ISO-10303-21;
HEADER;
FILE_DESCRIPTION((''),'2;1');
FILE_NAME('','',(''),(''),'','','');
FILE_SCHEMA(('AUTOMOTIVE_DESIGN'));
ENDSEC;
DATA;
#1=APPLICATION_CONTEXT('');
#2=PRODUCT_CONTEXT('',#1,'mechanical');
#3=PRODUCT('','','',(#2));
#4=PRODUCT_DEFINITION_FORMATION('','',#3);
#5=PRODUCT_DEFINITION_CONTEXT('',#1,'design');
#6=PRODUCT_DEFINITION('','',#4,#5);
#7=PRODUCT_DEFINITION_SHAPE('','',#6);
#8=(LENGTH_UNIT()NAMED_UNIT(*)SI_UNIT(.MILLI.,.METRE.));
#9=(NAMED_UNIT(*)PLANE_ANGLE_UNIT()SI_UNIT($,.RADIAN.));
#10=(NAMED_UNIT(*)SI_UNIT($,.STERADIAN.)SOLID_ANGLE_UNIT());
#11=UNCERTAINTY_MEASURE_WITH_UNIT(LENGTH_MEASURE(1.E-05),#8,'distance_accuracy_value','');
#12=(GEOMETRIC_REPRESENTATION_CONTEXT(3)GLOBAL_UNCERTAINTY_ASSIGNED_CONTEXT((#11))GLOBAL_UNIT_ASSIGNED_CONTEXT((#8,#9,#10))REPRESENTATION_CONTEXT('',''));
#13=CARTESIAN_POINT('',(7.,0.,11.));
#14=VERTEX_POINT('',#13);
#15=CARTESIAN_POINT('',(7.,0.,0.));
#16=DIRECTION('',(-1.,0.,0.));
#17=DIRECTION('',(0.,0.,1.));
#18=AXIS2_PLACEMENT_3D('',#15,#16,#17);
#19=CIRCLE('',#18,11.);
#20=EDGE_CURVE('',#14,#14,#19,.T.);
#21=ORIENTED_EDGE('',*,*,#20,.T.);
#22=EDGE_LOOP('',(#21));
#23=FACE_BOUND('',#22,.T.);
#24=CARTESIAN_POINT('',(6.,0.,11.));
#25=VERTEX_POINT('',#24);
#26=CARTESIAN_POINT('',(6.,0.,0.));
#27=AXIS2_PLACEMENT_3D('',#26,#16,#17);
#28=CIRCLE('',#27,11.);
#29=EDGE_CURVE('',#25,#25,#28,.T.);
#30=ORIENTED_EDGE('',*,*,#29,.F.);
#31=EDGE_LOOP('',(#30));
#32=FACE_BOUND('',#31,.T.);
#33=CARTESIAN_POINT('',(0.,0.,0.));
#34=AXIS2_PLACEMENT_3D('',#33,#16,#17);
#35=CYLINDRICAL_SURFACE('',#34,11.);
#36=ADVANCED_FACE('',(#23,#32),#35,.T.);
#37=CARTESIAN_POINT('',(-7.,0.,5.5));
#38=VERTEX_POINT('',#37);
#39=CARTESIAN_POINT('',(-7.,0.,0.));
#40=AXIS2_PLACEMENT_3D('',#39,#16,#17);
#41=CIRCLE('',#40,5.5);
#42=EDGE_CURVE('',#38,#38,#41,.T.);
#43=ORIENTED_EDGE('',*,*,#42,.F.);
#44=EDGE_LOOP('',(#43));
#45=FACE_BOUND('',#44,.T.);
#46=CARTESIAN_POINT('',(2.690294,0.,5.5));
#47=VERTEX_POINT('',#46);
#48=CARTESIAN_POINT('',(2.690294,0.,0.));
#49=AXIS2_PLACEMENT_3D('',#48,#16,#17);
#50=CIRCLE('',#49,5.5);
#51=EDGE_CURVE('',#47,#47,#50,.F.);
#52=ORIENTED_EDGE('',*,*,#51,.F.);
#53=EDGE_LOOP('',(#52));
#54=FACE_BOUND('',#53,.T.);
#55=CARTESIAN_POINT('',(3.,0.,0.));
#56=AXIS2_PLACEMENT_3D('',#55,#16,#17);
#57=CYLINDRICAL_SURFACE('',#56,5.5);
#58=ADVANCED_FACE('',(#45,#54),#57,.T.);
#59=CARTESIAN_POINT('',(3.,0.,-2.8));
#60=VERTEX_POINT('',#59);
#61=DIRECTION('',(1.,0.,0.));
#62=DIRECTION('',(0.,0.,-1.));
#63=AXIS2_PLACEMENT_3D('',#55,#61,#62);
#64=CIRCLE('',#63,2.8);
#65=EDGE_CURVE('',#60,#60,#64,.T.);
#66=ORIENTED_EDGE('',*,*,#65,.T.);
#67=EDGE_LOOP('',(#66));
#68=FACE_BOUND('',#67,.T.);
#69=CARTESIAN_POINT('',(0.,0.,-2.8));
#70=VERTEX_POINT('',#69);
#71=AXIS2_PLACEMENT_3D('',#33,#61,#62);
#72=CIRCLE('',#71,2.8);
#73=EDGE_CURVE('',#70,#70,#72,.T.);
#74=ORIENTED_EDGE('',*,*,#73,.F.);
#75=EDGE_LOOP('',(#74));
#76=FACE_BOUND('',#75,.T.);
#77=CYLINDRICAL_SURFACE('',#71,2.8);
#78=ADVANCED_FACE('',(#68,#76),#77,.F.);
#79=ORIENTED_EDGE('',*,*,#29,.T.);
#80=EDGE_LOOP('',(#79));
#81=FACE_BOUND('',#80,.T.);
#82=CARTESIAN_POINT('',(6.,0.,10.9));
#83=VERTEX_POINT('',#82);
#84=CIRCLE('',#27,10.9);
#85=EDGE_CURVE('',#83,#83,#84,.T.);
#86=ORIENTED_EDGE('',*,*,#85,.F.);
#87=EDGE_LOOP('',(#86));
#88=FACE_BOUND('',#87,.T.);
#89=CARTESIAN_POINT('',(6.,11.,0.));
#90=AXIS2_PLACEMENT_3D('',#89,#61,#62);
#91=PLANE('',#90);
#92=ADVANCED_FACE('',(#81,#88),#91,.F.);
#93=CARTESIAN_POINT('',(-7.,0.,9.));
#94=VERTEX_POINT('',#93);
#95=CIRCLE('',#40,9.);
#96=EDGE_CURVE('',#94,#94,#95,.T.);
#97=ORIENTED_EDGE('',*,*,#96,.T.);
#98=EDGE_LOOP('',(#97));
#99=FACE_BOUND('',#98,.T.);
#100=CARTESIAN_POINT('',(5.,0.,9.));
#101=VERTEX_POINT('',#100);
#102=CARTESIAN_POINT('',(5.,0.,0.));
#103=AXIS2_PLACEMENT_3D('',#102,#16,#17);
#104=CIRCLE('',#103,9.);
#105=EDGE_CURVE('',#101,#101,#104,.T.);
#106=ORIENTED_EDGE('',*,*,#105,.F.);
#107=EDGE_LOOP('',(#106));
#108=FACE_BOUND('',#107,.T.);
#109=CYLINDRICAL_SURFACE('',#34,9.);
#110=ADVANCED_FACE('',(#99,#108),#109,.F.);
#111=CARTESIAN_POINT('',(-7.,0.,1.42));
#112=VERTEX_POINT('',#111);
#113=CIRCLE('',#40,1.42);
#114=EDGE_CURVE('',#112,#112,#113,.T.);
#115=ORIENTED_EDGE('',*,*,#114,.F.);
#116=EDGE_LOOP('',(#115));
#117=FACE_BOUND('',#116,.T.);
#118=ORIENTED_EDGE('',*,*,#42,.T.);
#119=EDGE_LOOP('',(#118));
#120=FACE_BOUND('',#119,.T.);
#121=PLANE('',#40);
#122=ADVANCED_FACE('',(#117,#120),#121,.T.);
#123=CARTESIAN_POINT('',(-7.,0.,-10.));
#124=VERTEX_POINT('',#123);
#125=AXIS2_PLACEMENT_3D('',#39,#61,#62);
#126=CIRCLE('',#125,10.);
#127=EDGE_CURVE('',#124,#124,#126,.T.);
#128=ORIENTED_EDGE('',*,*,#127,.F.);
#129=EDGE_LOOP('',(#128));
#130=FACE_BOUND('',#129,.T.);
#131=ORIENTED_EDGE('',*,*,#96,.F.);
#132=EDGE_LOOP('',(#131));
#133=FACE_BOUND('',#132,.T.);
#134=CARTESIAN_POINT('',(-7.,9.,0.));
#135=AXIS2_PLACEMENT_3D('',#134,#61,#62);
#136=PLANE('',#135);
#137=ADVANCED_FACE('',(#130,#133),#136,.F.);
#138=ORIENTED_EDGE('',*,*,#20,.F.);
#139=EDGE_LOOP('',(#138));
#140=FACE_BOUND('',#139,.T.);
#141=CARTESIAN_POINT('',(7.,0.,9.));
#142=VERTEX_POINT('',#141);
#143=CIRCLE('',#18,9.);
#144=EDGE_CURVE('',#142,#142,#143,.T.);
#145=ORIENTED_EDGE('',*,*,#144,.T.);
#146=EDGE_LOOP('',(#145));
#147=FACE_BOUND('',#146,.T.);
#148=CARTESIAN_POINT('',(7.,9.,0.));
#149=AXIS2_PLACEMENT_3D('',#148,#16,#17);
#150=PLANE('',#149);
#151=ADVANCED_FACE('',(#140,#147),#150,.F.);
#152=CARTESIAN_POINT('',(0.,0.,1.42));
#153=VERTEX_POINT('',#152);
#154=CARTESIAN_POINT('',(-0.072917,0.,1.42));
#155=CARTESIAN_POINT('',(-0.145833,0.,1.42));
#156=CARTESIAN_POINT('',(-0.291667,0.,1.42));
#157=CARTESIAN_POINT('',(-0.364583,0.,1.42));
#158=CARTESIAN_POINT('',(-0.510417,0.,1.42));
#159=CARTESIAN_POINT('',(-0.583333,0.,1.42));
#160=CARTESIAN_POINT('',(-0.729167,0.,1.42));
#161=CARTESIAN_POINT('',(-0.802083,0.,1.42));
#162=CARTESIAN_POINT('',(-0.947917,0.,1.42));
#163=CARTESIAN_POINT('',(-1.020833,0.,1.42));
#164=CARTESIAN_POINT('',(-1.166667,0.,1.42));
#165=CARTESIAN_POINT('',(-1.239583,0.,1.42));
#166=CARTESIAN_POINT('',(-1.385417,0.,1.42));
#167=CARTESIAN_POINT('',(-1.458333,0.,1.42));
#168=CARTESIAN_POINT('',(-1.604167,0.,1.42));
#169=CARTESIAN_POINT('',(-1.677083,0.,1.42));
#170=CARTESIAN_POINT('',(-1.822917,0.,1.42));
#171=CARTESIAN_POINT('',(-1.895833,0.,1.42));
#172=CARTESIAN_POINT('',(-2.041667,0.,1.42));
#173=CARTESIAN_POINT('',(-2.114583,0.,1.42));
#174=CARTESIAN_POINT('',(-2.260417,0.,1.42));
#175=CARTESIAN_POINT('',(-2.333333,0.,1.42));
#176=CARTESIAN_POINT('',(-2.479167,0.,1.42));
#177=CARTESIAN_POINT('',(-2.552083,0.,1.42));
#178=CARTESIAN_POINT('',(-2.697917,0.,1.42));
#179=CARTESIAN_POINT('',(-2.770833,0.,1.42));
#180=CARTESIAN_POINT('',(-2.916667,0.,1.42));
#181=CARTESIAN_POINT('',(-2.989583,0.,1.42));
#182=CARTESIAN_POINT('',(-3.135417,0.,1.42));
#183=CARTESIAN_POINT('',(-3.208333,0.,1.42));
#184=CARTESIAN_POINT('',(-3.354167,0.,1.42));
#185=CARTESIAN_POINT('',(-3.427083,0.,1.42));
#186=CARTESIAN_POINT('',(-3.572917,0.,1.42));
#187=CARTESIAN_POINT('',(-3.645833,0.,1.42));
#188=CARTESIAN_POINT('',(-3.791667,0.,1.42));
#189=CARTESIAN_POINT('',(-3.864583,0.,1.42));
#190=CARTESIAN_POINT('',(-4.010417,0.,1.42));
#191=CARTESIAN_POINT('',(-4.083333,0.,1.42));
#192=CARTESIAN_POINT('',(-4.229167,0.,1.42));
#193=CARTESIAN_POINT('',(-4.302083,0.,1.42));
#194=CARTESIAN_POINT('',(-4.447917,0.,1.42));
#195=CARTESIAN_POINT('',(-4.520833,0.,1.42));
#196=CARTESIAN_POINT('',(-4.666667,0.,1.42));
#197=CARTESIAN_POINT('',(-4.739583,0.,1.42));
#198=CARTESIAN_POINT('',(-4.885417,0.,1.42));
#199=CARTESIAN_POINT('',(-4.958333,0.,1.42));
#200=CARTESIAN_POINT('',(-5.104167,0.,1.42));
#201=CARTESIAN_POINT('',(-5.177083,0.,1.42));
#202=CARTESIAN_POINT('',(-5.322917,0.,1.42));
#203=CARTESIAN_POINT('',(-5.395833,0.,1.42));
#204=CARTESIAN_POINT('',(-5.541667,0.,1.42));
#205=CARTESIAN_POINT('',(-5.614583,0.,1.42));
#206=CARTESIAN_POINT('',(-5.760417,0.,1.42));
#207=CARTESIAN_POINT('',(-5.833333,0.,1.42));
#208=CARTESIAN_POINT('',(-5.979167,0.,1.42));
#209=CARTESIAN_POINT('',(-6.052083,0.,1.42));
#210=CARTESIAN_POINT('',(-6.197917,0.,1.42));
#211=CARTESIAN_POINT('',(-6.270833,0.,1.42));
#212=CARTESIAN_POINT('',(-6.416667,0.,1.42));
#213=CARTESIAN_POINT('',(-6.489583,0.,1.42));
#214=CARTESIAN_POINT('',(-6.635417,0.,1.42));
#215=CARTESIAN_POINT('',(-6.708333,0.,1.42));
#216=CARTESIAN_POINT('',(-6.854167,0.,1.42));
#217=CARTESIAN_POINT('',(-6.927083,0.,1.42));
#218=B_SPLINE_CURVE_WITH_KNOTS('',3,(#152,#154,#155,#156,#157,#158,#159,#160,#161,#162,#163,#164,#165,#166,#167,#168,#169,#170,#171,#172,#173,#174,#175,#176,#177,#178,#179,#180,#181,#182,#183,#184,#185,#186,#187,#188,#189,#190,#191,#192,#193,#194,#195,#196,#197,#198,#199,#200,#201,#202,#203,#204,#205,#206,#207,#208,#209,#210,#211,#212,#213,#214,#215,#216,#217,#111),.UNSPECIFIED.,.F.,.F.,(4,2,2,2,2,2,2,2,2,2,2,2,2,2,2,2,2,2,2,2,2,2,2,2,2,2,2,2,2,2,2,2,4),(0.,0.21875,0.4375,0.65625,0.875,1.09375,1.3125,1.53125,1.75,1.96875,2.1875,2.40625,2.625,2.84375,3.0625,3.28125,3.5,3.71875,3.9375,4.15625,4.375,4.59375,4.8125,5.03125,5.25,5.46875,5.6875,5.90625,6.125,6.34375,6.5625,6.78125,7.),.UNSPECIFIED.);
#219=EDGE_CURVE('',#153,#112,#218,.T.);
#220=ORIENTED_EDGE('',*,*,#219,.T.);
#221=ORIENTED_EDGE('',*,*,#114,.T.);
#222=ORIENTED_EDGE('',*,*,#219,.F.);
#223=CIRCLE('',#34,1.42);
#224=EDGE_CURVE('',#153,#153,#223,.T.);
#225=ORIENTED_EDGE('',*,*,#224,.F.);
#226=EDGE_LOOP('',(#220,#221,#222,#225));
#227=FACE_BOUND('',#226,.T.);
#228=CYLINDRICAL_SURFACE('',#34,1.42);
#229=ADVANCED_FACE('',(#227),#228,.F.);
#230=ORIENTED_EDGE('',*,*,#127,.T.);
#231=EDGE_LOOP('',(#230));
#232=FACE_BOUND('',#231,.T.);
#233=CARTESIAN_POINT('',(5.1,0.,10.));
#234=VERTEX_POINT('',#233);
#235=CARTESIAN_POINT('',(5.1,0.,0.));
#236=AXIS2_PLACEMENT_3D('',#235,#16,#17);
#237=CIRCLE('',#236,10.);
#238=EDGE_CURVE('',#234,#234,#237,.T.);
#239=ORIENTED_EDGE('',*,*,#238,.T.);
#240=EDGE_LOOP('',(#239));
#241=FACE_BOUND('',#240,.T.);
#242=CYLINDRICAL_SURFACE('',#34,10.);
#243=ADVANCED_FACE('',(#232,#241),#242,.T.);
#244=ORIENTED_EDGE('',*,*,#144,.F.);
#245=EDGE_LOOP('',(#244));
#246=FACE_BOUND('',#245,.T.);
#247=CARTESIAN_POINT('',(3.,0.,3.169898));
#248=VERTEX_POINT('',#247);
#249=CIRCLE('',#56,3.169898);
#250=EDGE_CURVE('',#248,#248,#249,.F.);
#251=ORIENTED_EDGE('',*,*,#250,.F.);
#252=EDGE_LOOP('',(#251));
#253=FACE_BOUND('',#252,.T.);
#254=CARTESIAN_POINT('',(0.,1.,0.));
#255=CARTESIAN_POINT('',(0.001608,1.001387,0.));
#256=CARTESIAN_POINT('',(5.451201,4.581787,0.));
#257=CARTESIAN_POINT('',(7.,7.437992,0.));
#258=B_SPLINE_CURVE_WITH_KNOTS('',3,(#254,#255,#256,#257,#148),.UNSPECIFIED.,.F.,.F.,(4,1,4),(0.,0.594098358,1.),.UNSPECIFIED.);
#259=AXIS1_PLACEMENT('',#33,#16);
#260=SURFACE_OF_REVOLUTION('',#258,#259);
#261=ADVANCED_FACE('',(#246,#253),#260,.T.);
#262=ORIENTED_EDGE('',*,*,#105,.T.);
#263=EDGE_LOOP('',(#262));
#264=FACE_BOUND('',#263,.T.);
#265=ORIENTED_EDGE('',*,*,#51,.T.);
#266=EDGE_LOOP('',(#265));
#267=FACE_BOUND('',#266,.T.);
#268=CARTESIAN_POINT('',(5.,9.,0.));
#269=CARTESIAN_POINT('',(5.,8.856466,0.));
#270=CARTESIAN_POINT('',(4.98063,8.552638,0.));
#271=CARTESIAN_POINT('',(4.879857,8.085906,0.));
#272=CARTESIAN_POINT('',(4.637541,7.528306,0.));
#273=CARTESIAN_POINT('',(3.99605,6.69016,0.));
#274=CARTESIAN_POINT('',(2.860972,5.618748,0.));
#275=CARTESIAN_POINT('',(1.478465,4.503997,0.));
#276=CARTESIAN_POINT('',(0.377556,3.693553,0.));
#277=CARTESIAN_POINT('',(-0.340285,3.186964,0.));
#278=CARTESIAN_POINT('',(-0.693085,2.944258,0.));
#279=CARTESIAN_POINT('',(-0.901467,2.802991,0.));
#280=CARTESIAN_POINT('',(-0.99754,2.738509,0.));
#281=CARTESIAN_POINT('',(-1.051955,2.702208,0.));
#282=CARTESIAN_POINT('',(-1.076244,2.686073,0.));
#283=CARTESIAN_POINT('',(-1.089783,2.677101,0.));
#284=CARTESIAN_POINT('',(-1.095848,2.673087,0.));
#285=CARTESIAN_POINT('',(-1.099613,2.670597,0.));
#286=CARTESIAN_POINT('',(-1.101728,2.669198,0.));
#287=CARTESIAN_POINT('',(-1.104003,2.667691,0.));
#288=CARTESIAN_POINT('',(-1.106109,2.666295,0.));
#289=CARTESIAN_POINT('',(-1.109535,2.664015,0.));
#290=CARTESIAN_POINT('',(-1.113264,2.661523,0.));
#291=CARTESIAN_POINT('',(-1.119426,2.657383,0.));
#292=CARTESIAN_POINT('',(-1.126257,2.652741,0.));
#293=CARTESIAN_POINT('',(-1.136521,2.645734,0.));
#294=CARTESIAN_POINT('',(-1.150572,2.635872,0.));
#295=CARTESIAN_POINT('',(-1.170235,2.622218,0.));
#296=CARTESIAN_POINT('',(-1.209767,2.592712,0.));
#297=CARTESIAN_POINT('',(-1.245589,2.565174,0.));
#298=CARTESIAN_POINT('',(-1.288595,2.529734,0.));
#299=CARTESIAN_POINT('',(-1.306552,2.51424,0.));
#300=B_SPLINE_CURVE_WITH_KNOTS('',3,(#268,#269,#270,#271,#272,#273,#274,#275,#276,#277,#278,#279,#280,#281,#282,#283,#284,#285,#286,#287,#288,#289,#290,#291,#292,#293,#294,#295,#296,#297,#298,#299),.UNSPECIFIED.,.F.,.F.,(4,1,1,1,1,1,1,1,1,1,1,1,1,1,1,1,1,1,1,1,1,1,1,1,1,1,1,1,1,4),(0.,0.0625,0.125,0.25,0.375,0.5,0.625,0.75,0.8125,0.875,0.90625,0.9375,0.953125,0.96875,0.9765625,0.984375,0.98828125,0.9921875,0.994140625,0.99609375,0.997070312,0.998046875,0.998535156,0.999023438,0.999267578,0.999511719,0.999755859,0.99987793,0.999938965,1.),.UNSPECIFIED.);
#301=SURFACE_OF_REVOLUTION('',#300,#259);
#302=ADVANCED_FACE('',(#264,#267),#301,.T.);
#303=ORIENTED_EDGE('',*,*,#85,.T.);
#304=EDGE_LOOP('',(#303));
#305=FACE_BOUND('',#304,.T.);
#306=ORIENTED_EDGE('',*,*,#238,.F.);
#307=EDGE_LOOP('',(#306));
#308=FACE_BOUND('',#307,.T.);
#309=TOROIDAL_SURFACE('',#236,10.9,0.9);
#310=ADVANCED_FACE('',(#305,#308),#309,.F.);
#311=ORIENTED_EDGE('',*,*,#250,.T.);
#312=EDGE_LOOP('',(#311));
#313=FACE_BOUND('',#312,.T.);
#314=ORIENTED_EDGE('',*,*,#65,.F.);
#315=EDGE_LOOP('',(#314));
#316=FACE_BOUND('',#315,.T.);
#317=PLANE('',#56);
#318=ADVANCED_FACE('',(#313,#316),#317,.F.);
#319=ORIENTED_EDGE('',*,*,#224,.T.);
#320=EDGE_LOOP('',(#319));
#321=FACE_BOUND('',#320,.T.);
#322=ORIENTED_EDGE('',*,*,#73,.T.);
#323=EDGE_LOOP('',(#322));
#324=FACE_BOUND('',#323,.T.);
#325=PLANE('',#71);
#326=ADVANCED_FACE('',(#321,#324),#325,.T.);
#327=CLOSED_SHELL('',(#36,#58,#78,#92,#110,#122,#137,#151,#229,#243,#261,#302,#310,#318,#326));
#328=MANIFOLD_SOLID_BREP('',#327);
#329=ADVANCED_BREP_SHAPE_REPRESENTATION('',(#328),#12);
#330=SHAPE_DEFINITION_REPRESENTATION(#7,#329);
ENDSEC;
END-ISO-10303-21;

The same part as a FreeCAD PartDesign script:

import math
import FreeCAD as App
import Part
import Sketcher
Q = App.Units.Quantity

doc = App.newDocument("Part")
body = doc.addObject("PartDesign::Body", "Body")

sketch1 = doc.addObject("Sketcher::SketchObject", "Sketch")
body.addObject(sketch1)
sketch1.AttachmentSupport = (doc.XY_Plane, [""])
sketch1.MapMode = "FlatFace"
sketch1.addGeometry(Part.LineSegment(App.Vector(-7, 9, 0), App.Vector(5, 9, 0)), False)
sketch1.addGeometry(Part.BSplineCurve([App.Vector(5, 9, 0), App.Vector(5, 8.856466, 0), App.Vector(4.98063, 8.552638, 0), App.Vector(4.879857, 8.085906, 0), App.Vector(4.637541, 7.528306, 0), App.Vector(3.99605, 6.69016, 0), App.Vector(2.860972, 5.618748, 0), App.Vector(1.478465, 4.503997, 0), App.Vector(0.514957, 3.794702, 0), App.Vector(0.06844, 3.476276, 0), App.Vector(0, 3.427717, 0)], [4, 1, 1, 1, 1, 1, 1, 1, 4], [0, 0.0625, 0.125, 0.25, 0.375, 0.5, 0.625, 0.75, 0.773497894], False, 3, [1, 1, 1, 1, 1, 1, 1, 1, 1, 1, 1], False), False)
sketch1.addGeometry(Part.LineSegment(App.Vector(0, 3.427717, 0), App.Vector(0, 1, 0)), False)
sketch1.addGeometry(Part.BSplineCurve([App.Vector(7, 9, 0), App.Vector(7, 7.437992, 0), App.Vector(5.451201, 4.581787, 0), App.Vector(0.001608, 1.001387, 0), App.Vector(0, 1, 0)], [4, 1, 4], [0, 0.405901642, 1], False, 3, [1, 1, 1, 1, 1], False), False)
sketch1.addGeometry(Part.LineSegment(App.Vector(7, 9, 0), App.Vector(7, 11, 0)), False)
sketch1.addGeometry(Part.LineSegment(App.Vector(7, 11, 0), App.Vector(6, 11, 0)), False)
sketch1.addGeometry(Part.LineSegment(App.Vector(6, 11, 0), App.Vector(6, 10.9, 0)), False)
sketch1.addGeometry(Part.ArcOfCircle(Part.Circle(App.Vector(5.1, 10.9, 0), App.Vector(0, 0, 1), 0.9), math.radians(-90), math.radians(0)), False)
sketch1.addGeometry(Part.LineSegment(App.Vector(5.1, 10, 0), App.Vector(-5.1, 10, 0)), False)
sketch1.addGeometry(Part.ArcOfCircle(Part.Circle(App.Vector(-5.1, 10.9, 0), App.Vector(0, 0, 1), 0.9), math.radians(180), math.radians(270)), False)
sketch1.addGeometry(Part.LineSegment(App.Vector(-6, 10.9, 0), App.Vector(-6, 11, 0)), False)
sketch1.addGeometry(Part.LineSegment(App.Vector(-6, 11, 0), App.Vector(-7, 11, 0)), False)
sketch1.addGeometry(Part.LineSegment(App.Vector(-7, 11, 0), App.Vector(-7, 9, 0)), False)
sketch1.addConstraint(Sketcher.Constraint("Block", 1))
sketch1.addConstraint(Sketcher.Constraint("Block", 3))
sketch1.addConstraint(Sketcher.Constraint("Coincident", 0, 2, 1, 1))
sketch1.addConstraint(Sketcher.Constraint("Coincident", 1, 2, 2, 1))
sketch1.addConstraint(Sketcher.Constraint("Coincident", 2, 2, 3, 2))
sketch1.addConstraint(Sketcher.Constraint("Coincident", 3, 1, 4, 1))
sketch1.addConstraint(Sketcher.Constraint("Coincident", 4, 2, 5, 1))
sketch1.addConstraint(Sketcher.Constraint("Coincident", 5, 2, 6, 1))
sketch1.addConstraint(Sketcher.Constraint("Tangent", 6, 2, 7, 2))
sketch1.addConstraint(Sketcher.Constraint("Tangent", 7, 1, 8, 1))
sketch1.addConstraint(Sketcher.Constraint("Tangent", 8, 2, 9, 2))
sketch1.addConstraint(Sketcher.Constraint("Tangent", 9, 1, 10, 1))
sketch1.addConstraint(Sketcher.Constraint("Coincident", 10, 2, 11, 1))
sketch1.addConstraint(Sketcher.Constraint("Coincident", 11, 2, 12, 1))
sketch1.addConstraint(Sketcher.Constraint("Coincident", 12, 2, 0, 1))
sketch1.addConstraint(Sketcher.Constraint("Horizontal", 0))
sketch1.addConstraint(Sketcher.Constraint("Vertical", 4))
sketch1.addConstraint(Sketcher.Constraint("Horizontal", 5))
sketch1.addConstraint(Sketcher.Constraint("Vertical", 6))
sketch1.addConstraint(Sketcher.Constraint("Horizontal", 8))
sketch1.addConstraint(Sketcher.Constraint("Vertical", 10))
sketch1.addConstraint(Sketcher.Constraint("Horizontal", 11))
sketch1.addConstraint(Sketcher.Constraint("Vertical", 12))
sketch1.addConstraint(Sketcher.Constraint("Equal", 7, 9))
sketch1.addConstraint(Sketcher.Constraint("Symmetric", 5, 2, 10, 2, -2))
sketch1.addConstraint(Sketcher.Constraint("Equal", 5, 11))
sketch1.addConstraint(Sketcher.Constraint("Radius", 7, Q("0.9 mm")))
sketch1.addConstraint(Sketcher.Constraint("DistanceX", 5, 2, 5, 1, Q("1 mm")))
sketch1.addConstraint(Sketcher.Constraint("DistanceY", 4, 1, 4, 2, Q("2 mm")))
sketch1.addConstraint(Sketcher.Constraint("DistanceY", 6, 2, 6, 1, Q("0.1 mm")))
revolution = doc.addObject("PartDesign::Revolution", "Revolution")
body.addObject(revolution)
revolution.Profile = sketch1
revolution.ReferenceAxis = (sketch1, ["H_Axis"])
revolution.Angle = 360

sketch2 = doc.addObject("Sketcher::SketchObject", "Sketch001")
body.addObject(sketch2)
sketch2.AttachmentSupport = (doc.YZ_Plane, [""])
sketch2.MapMode = "FlatFace"
sketch2.AttachmentOffset = App.Placement(App.Vector(0, 0, -7), App.Rotation())
sketch2.addGeometry(Part.Circle(App.Vector(0, 0, 0), App.Vector(0, 0, 1), 5.5), False)
sketch2.addGeometry(Part.Circle(App.Vector(0, 0, 0), App.Vector(0, 0, 1), 1), False)
sketch2.addConstraint(Sketcher.Constraint("Coincident", 0, 3, -1, 1))
sketch2.addConstraint(Sketcher.Constraint("Coincident", 1, 3, -1, 1))
sketch2.addConstraint(Sketcher.Constraint("Diameter", 0, Q("11 mm")))
sketch2.addConstraint(Sketcher.Constraint("Diameter", 1, Q("2 mm")))
pad1 = doc.addObject("PartDesign::Pad", "Pad")
body.addObject(pad1)
pad1.Profile = sketch2
pad1.Length = 10

sketch3 = doc.addObject("Sketcher::SketchObject", "Sketch002")
body.addObject(sketch3)
sketch3.AttachmentSupport = (doc.YZ_Plane, [""])
sketch3.MapMode = "FlatFace"
sketch3.AttachmentOffset = App.Placement(App.Vector(0, 0, 3), App.Rotation())
sketch3.addGeometry(Part.Circle(App.Vector(0, 0, 0), App.Vector(0, 0, 1), 2.8), False)
sketch3.addConstraint(Sketcher.Constraint("Coincident", 0, 3, -1, 1))
sketch3.addConstraint(Sketcher.Constraint("Diameter", 0, Q("5.6 mm")))
pocket1 = doc.addObject("PartDesign::Pocket", "Pocket")
body.addObject(pocket1)
pocket1.Profile = sketch3
pocket1.Length = 3

sketch4 = doc.addObject("Sketcher::SketchObject", "Sketch003")
body.addObject(sketch4)
sketch4.AttachmentSupport = (doc.YZ_Plane, [""])
sketch4.MapMode = "FlatFace"
sketch4.AttachmentOffset = App.Placement(App.Vector(0, 0, -7), App.Rotation())
sketch4.addGeometry(Part.Circle(App.Vector(0, 0, 0), App.Vector(0, 0, 1), 1.4), False)
sketch4.addConstraint(Sketcher.Constraint("Coincident", 0, 3, -1, 1))
sketch4.addConstraint(Sketcher.Constraint("Diameter", 0, Q("2.84 mm")))
pocket2 = doc.addObject("PartDesign::Pocket", "Pocket001")
body.addObject(pocket2)
pocket2.Profile = sketch4
pocket2.Length = 7
pocket2.Reversed = True

sketch5 = doc.addObject("Sketcher::SketchObject", "Sketch004")
body.addObject(sketch5)
sketch5.AttachmentSupport = (doc.YZ_Plane, [""])
sketch5.MapMode = "FlatFace"
sketch5.addGeometry(Part.Circle(App.Vector(0, 0, 0), App.Vector(0, 0, 1), 22), False)
sketch5.addGeometry(Part.Circle(App.Vector(0, 0, 0), App.Vector(0, 0, 1), 10), False)
sketch5.addConstraint(Sketcher.Constraint("Coincident", 0, 3, -1, 1))
sketch5.addConstraint(Sketcher.Constraint("Coincident", 1, 3, -1, 1))
sketch5.addConstraint(Sketcher.Constraint("Diameter", 1, Q("20 mm")))
sketch5.addConstraint(Sketcher.Constraint("Diameter", 0, Q("44.263468 mm")))
pocket3 = doc.addObject("PartDesign::Pocket", "Pocket002")
body.addObject(pocket3)
pocket3.Profile = sketch5
pocket3.Length = 10

doc.recompute()
